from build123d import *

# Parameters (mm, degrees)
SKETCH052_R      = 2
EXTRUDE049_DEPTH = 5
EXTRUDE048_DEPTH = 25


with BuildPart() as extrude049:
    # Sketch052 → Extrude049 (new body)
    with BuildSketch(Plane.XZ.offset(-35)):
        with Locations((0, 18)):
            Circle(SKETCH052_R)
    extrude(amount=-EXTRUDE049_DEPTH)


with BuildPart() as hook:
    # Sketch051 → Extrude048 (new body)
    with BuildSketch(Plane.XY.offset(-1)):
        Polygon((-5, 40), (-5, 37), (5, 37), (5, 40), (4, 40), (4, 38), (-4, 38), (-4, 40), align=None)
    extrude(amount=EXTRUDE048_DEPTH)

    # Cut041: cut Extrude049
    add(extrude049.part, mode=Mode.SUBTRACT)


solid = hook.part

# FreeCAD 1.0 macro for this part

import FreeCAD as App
import Part
import Sketcher
Q = App.Units.Quantity


def add_polygon(sketch, points):
    """Adds a closed chain of lines whose ends are joined by coincident constraints."""
    first, n = sketch.GeometryCount, len(points)
    for a, b in zip(points, points[1:] + points[:1]):
        sketch.addGeometry(Part.LineSegment(App.Vector(*a, 0), App.Vector(*b, 0)), False)
    for i in range(n):
        sketch.addConstraint(Sketcher.Constraint("Coincident", first + i, 2, first + (i + 1) % n, 1))

doc = App.newDocument("Part")
body = doc.addObject("PartDesign::Body", "Body")

# Sketch on XZ plane
sketch1 = body.newObject("Sketcher::SketchObject", "Sketch")
sketch1.AttachmentSupport = (doc.getObject("XZ_Plane"), [""])
sketch1.MapMode = "FlatFace"
sketch1.AttachmentOffset = App.Placement(App.Vector(0, 0, -35), App.Rotation())
sketch1.addGeometry(Part.Circle(App.Vector(0, 18, 0), App.Vector(0, 0, 1), 2), False)
sketch1.addConstraint([
    Sketcher.Constraint("PointOnObject", 0, 3, -2),
    Sketcher.Constraint("Diameter", 0, Q("4 mm")),
    Sketcher.Constraint("DistanceY", -1, 1, 0, 3, Q("18 mm")),
])
pad1 = body.newObject("PartDesign::Pad", "Pad")
pad1.Profile = sketch1
pad1.Length = 5
pad1.Reversed = True
body2 = doc.addObject("PartDesign::Body", "Body001")

# Sketch on XY plane
sketch2 = body2.newObject("Sketcher::SketchObject", "Sketch001")
sketch2.AttachmentSupport = (doc.getObject("XY_Plane001"), [""])
sketch2.MapMode = "FlatFace"
sketch2.AttachmentOffset = App.Placement(App.Vector(0, 0, -1), App.Rotation())
add_polygon(sketch2, [(-5, 40), (-5, 37), (5, 37), (5, 40), (4, 40), (4, 38), (-4, 38), (-4, 40)])  # lines 0-7
sketch2.addConstraint([
    Sketcher.Constraint("Vertical", 0),
    Sketcher.Constraint("Horizontal", 1),
    Sketcher.Constraint("Vertical", 2),
    Sketcher.Constraint("Horizontal", 3),
    Sketcher.Constraint("Vertical", 4),
    Sketcher.Constraint("Horizontal", 5),
    Sketcher.Constraint("Vertical", 6),
    Sketcher.Constraint("Horizontal", 7),
    Sketcher.Constraint("Symmetric", 3, 2, 6, 2, -2),
    Sketcher.Constraint("Equal", 3, 7),
    Sketcher.Constraint("DistanceX", 1, 1, 1, 2, Q("10 mm")),
    Sketcher.Constraint("DistanceX", 3, 2, 3, 1, Q("1 mm")),
    Sketcher.Constraint("DistanceY", 0, 2, 0, 1, Q("3 mm")),
    Sketcher.Constraint("DistanceY", 4, 2, 4, 1, Q("2 mm")),
    Sketcher.Constraint("DistanceY", -1, 1, 0, 2, Q("37 mm")),
])
pad2 = body2.newObject("PartDesign::Pad", "Pad001")
pad2.Profile = sketch2
pad2.Length = 25
doc.recompute()

boolean = body2.newObject("PartDesign::Boolean", "Boolean")
boolean.Type = "Cut"
boolean.addObjects([body])

doc.recompute()
